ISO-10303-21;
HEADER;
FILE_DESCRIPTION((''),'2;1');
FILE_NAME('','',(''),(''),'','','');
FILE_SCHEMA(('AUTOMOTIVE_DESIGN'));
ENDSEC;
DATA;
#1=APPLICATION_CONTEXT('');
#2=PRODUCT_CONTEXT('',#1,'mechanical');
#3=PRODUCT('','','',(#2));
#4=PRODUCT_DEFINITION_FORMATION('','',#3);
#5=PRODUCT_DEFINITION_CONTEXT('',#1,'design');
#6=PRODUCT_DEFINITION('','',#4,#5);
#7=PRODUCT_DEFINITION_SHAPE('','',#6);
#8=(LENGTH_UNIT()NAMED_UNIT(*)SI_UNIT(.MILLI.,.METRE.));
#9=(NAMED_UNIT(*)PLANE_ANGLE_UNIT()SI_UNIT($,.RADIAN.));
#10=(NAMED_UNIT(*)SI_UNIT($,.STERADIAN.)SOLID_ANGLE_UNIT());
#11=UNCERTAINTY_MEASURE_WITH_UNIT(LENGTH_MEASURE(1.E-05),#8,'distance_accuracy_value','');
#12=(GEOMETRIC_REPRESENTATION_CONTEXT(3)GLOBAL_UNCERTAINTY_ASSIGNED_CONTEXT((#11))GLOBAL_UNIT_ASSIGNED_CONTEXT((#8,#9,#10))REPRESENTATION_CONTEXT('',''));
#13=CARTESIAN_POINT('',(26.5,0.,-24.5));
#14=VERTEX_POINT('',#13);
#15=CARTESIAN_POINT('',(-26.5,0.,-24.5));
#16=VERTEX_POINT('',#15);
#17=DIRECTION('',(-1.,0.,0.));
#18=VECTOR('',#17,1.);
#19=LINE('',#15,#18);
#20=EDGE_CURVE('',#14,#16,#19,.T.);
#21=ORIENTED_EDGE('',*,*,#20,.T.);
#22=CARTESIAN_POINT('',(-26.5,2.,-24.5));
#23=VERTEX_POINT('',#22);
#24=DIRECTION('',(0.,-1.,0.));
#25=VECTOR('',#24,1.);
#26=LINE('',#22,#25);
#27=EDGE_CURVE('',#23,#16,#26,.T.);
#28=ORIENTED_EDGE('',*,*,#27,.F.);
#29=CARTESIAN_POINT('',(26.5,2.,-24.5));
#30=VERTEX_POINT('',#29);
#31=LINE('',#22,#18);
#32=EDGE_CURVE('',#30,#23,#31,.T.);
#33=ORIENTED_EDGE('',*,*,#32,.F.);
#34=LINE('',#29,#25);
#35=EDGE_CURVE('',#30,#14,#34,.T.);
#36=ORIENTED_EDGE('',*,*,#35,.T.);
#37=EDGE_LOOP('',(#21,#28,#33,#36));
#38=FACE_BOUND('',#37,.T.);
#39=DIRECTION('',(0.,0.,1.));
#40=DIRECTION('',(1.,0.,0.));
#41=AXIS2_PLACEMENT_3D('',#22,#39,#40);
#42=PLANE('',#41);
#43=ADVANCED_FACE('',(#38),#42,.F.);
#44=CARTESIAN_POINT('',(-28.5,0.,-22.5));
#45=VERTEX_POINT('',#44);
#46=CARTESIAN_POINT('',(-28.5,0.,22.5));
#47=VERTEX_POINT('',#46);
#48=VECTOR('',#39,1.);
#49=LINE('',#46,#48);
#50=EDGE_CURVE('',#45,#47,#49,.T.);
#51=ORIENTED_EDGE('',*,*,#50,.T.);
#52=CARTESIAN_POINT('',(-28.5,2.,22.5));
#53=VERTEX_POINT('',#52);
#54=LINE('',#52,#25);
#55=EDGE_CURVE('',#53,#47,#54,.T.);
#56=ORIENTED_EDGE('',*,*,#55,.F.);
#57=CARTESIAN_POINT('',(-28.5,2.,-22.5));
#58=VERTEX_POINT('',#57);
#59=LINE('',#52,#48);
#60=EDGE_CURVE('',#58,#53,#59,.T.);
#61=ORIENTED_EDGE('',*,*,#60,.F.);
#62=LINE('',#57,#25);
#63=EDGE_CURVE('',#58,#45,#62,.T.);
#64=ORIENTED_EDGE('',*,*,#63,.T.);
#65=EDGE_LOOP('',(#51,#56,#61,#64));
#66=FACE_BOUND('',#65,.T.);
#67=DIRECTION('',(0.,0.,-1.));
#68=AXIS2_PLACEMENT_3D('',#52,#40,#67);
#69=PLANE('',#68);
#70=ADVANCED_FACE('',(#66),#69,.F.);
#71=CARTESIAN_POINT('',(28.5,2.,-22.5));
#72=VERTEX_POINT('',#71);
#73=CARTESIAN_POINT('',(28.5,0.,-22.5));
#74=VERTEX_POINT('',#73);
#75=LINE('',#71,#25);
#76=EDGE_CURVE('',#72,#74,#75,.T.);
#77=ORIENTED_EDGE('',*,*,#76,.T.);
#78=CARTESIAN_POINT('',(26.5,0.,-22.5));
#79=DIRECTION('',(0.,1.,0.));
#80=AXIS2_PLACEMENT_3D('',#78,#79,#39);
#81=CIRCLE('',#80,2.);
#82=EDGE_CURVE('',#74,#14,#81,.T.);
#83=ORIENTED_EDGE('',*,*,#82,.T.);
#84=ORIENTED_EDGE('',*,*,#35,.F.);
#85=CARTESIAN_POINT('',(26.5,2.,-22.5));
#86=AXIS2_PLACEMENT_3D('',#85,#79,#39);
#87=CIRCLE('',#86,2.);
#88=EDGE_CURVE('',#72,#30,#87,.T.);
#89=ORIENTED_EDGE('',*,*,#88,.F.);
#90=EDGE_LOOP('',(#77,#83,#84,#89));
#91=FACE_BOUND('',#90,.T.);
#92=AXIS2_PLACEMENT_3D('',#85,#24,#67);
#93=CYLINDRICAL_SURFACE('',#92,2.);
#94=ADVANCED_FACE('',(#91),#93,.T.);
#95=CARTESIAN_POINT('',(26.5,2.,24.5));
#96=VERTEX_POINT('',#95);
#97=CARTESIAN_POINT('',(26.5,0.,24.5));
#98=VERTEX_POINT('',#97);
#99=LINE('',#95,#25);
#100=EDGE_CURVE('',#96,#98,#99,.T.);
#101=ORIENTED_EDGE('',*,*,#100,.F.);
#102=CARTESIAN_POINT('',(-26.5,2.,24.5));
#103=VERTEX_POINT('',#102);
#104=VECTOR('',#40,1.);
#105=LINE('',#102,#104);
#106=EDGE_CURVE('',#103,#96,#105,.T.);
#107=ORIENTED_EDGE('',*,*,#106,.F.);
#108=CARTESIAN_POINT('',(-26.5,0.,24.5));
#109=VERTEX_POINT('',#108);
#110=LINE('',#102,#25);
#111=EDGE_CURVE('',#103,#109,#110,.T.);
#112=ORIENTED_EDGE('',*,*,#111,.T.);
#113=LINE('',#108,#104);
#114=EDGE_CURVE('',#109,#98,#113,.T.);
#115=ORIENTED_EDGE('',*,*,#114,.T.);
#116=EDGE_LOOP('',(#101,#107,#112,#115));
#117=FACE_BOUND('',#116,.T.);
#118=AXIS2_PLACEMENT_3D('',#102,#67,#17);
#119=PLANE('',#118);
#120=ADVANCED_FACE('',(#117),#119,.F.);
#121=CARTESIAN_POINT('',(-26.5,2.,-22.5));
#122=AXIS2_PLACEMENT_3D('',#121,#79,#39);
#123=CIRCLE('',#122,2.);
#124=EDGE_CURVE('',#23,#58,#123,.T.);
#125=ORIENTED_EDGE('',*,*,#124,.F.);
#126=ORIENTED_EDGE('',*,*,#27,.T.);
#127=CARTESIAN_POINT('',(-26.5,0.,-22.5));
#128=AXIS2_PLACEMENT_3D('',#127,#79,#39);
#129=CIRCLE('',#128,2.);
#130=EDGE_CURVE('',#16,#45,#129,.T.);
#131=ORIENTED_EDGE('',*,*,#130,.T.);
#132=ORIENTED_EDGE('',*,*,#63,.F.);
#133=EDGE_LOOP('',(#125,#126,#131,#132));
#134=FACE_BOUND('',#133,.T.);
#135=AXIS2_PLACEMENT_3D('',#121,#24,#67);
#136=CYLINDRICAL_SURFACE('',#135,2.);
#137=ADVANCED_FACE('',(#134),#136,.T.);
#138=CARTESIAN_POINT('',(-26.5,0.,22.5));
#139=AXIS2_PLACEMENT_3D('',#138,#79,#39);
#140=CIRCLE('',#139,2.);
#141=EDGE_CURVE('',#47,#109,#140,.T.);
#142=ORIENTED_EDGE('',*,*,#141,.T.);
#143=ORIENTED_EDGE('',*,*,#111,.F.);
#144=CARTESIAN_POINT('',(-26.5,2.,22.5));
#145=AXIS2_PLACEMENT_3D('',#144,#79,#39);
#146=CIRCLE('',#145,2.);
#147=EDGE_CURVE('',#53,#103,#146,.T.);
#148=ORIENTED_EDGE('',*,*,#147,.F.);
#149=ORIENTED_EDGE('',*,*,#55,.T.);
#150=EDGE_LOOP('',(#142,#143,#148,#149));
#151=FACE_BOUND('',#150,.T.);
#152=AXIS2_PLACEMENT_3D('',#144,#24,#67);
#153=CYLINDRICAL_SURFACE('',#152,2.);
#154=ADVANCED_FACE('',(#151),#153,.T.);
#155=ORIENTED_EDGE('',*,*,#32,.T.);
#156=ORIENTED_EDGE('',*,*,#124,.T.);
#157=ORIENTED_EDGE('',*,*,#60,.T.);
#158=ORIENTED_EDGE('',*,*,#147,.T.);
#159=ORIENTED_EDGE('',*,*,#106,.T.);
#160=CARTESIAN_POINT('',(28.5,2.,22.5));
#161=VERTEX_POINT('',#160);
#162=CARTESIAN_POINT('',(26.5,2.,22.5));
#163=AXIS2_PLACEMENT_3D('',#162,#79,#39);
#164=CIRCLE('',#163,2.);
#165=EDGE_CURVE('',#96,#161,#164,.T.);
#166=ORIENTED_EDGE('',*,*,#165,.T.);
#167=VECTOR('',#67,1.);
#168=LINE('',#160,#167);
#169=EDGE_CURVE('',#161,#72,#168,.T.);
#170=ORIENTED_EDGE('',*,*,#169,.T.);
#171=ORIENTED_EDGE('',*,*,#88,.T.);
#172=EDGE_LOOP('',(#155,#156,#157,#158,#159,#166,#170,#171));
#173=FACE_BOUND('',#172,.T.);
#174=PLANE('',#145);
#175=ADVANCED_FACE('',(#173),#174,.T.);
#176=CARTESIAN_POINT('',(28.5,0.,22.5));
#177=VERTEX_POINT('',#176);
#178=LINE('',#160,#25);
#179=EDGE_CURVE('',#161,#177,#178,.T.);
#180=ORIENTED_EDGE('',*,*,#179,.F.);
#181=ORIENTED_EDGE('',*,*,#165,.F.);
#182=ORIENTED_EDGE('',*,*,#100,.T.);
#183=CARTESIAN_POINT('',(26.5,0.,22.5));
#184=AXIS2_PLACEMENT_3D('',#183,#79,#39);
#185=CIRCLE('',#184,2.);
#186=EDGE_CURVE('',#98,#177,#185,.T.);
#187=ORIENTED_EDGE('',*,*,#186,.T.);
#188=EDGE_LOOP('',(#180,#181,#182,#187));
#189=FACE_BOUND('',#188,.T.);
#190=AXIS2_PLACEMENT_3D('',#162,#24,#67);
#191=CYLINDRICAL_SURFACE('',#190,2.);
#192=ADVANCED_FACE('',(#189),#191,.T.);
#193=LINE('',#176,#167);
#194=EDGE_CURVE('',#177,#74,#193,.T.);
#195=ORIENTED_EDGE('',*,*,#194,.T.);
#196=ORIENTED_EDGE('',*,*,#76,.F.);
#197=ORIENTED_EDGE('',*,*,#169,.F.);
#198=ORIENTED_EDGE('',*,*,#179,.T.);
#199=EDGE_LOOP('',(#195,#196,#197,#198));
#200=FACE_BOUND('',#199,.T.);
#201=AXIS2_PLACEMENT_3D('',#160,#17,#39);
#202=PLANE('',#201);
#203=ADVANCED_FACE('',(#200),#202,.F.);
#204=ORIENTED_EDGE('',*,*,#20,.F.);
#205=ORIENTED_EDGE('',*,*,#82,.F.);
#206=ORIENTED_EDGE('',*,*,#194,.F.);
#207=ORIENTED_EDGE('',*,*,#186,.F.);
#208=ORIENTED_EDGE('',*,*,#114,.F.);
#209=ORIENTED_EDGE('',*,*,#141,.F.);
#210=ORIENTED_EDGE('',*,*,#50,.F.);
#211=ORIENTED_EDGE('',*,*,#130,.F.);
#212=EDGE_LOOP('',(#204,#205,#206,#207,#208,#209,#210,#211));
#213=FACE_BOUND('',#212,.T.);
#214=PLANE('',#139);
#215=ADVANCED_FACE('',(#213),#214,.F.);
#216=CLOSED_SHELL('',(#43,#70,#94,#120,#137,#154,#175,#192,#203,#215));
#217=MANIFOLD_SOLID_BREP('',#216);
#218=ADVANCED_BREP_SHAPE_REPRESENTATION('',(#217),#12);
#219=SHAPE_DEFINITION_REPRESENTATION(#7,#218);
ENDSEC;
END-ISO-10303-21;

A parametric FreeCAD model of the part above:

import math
import FreeCAD as App
import Part
import Sketcher
from FreeCAD import Vector

doc = App.newDocument("Part")
body = doc.addObject("PartDesign::Body", "Body")

sketch1 = body.newObject("Sketcher::SketchObject", "Sketch")
sketch1.AttachmentSupport = (doc.getObject("XZ_Plane"), [""])
sketch1.MapMode = "FlatFace"
sketch1.addGeometry([
    Part.LineSegment(Vector(-26.5, 24.5, 0), Vector(26.5, 24.5, 0)),
    Part.ArcOfCircle(Part.Circle(Vector(26.5, 22.5, 0), Vector(0, 0, 1), 2), math.radians(0), math.radians(90)),
    Part.LineSegment(Vector(28.5, 22.5, 0), Vector(28.5, -22.5, 0)),
    Part.ArcOfCircle(Part.Circle(Vector(26.5, -22.5, 0), Vector(0, 0, 1), 2), math.radians(-90), math.radians(0)),
    Part.LineSegment(Vector(26.5, -24.5, 0), Vector(-26.5, -24.5, 0)),
    Part.ArcOfCircle(Part.Circle(Vector(-26.5, -22.5, 0), Vector(0, 0, 1), 2), math.radians(-180), math.radians(-90)),
    Part.LineSegment(Vector(-28.5, -22.5, 0), Vector(-28.5, 22.5, 0)),
    Part.ArcOfCircle(Part.Circle(Vector(-26.5, 22.5, 0), Vector(0, 0, 1), 2), math.radians(90), math.radians(180)),
], False)
sketch1.addConstraint([
    Sketcher.Constraint("Tangent", 0, 2, 1, 2),
    Sketcher.Constraint("Tangent", 1, 1, 2, 1),
    Sketcher.Constraint("Tangent", 2, 2, 3, 2),
    Sketcher.Constraint("Tangent", 3, 1, 4, 1),
    Sketcher.Constraint("Tangent", 4, 2, 5, 2),
    Sketcher.Constraint("Tangent", 5, 1, 6, 1),
    Sketcher.Constraint("Tangent", 6, 2, 7, 2),
    Sketcher.Constraint("Tangent", 7, 1, 0, 1),
    Sketcher.Constraint("Horizontal", 0),
    Sketcher.Constraint("Vertical", 2),
    Sketcher.Constraint("Horizontal", 4),
    Sketcher.Constraint("Vertical", 6),
    Sketcher.Constraint("Equal", 1, 3),
    Sketcher.Constraint("Equal", 3, 5),
    Sketcher.Constraint("Equal", 5, 7),
    Sketcher.Constraint("Symmetric", 1, 3, 5, 3, -1, 1),
    Sketcher.Constraint("Radius", 1, 2.0),
    Sketcher.Constraint("DistanceX", 0, 1, 0, 2, 53.0),
    Sketcher.Constraint("DistanceY", 2, 2, 2, 1, 45.0),
])
pad1 = body.newObject("PartDesign::Pad", "Pad")
pad1.Profile = sketch1
pad1.Length = 2
pad1.Reversed = True

doc.recompute()
